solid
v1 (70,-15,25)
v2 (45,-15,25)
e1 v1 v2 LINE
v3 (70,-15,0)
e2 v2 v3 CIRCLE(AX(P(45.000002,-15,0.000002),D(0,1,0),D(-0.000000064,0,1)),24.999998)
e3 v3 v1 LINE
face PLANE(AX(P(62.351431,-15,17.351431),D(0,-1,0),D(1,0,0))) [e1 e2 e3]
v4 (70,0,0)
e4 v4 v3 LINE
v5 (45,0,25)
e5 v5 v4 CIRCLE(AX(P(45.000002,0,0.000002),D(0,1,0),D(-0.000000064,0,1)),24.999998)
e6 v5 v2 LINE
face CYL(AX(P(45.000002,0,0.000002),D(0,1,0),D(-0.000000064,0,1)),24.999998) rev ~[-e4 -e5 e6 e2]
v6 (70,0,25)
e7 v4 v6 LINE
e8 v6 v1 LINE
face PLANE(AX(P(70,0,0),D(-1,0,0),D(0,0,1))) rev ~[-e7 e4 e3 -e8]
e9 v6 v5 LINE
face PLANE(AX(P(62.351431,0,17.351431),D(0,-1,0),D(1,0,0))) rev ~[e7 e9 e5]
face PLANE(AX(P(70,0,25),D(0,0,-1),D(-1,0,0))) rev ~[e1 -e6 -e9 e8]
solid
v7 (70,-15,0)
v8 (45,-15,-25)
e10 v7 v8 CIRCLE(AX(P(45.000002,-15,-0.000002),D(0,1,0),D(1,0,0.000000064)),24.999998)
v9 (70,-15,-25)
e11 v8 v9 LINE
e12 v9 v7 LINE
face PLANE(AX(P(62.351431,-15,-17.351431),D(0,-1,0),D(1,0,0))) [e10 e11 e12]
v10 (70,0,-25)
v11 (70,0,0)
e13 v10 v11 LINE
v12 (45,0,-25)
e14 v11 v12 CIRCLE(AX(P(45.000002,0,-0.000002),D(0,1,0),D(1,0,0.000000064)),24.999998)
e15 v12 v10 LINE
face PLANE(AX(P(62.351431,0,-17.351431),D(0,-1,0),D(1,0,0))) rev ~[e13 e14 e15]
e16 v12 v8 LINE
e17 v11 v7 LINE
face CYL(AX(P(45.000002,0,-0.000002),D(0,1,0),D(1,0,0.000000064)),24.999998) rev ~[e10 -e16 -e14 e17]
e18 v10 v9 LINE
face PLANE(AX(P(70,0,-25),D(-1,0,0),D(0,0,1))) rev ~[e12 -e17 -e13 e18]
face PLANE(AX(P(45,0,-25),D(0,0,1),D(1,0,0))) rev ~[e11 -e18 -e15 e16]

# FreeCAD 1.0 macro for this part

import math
import FreeCAD as App
import Part
import Sketcher
from FreeCAD import Vector
Q = App.Units.Quantity

doc = App.newDocument("Part")
body = doc.addObject("PartDesign::Body", "Body")
body.AllowCompound = True

sketch1 = body.newObject("Sketcher::SketchObject", "Sketch")
sketch1.AttachmentSupport = (doc.getObject("XZ_Plane"), [""])
sketch1.MapMode = "FlatFace"
sketch1.addGeometry([
    Part.LineSegment(Vector(70, 0, 0), Vector(70, 25, 0)),
    Part.LineSegment(Vector(70, 25, 0), Vector(45, 25, 0)),
    Part.ArcOfCircle(Part.Circle(Vector(45, 0, 0), Vector(0, 0, 1), 25), math.radians(0), math.radians(90)),
    Part.LineSegment(Vector(70, -25, 0), Vector(70, 0, 0)),
    Part.ArcOfCircle(Part.Circle(Vector(45, 0, 0), Vector(0, 0, 1), 25), math.radians(-90), math.radians(0)),
    Part.LineSegment(Vector(45, -25, 0), Vector(70, -25, 0)),
], False)
sketch1.addConstraint([
    Sketcher.Constraint("Coincident", 0, 2, 1, 1),
    Sketcher.Constraint("Tangent", 1, 2, 2, 2),
    Sketcher.Constraint("Tangent", 2, 1, 0, 1),
    Sketcher.Constraint("Tangent", 3, 2, 4, 2),
    Sketcher.Constraint("Tangent", 4, 1, 5, 1),
    Sketcher.Constraint("Coincident", 5, 2, 3, 1),
    Sketcher.Constraint("Vertical", 0),
    Sketcher.Constraint("Horizontal", 1),
    Sketcher.Constraint("Vertical", 3),
    Sketcher.Constraint("Horizontal", 5),
    Sketcher.Constraint("Coincident", 4, 3, 2, 3),
    Sketcher.Constraint("Equal", 2, 4),
    Sketcher.Constraint("PointOnObject", 2, 3, -1),
    Sketcher.Constraint("Radius", 2, Q("24.999998 mm")),
    Sketcher.Constraint("DistanceX", -1, 1, 2, 3, Q("45.000002 mm")),
])
pad1 = body.newObject("PartDesign::Pad", "Pad")
pad1.Profile = sketch1
pad1.Length = 15

doc.recompute()
